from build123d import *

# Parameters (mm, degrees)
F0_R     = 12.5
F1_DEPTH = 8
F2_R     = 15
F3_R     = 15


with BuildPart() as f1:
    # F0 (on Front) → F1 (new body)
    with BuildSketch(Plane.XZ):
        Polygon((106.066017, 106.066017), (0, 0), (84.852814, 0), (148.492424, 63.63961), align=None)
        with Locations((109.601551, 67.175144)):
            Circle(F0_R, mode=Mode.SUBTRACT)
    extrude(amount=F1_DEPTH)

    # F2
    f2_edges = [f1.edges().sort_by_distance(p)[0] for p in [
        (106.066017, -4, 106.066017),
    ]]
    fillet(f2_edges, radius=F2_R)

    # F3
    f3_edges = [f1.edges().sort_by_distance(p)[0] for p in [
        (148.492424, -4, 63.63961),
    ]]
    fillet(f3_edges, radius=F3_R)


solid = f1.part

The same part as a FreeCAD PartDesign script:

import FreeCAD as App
import Part
import Sketcher
from FreeCAD import Vector
Q = App.Units.Quantity


def edges_at(feature, points):
    """Names of the edges that pass closest to the given points."""
    edges = feature.Shape.Edges
    near = lambda p: min(range(len(edges)), key=lambda i: edges[i].distToShape(Part.Vertex(*p))[0])
    return sorted({f"Edge{near(p) + 1}" for p in points})

doc = App.newDocument("Part")
body = doc.addObject("PartDesign::Body", "Body")

sketch1 = doc.addObject("Sketcher::SketchObject", "Sketch")
body.addObject(sketch1)
sketch1.AttachmentSupport = (doc.XZ_Plane, [""])
sketch1.MapMode = "FlatFace"
sketch1.addGeometry(Part.LineSegment(Vector(106, 106, 0), Vector(0, 0, 0)), False)
sketch1.addGeometry(Part.LineSegment(Vector(0, 0, 0), Vector(85, 0, 0)), False)
sketch1.addGeometry(Part.LineSegment(Vector(85, 0, 0), Vector(148, 64, 0)), False)
sketch1.addGeometry(Part.LineSegment(Vector(148, 64, 0), Vector(106, 106, 0)), False)
sketch1.addGeometry(Part.Circle(Vector(110, 67, 0), Vector(0, 0, 1), 12), False)
sketch1.addConstraint(Sketcher.Constraint("Coincident", 0, 2, 1, 1))
sketch1.addConstraint(Sketcher.Constraint("Coincident", 1, 2, 2, 1))
sketch1.addConstraint(Sketcher.Constraint("Coincident", 2, 2, 3, 1))
sketch1.addConstraint(Sketcher.Constraint("Coincident", 3, 2, 0, 1))
sketch1.addConstraint(Sketcher.Constraint("Horizontal", 1))
sketch1.addConstraint(Sketcher.Constraint("Coincident", 0, 2, -1, 1))
sketch1.addConstraint(Sketcher.Constraint("Parallel", 0, 2))
sketch1.addConstraint(Sketcher.Constraint("Perpendicular", 2, 3))
sketch1.addConstraint(Sketcher.Constraint("Diameter", 4, Q("25 mm")))
sketch1.addConstraint(Sketcher.Constraint("Angle", 0, Q("-135 deg")))
sketch1.addConstraint(Sketcher.Constraint("Distance", 0, Q("150 mm")))
sketch1.addConstraint(Sketcher.Constraint("Distance", 2, Q("90 mm")))
sketch1.addConstraint(Sketcher.Constraint("DistanceX", -1, 1, 4, 3, Q("109.601551 mm")))
sketch1.addConstraint(Sketcher.Constraint("DistanceY", -1, 1, 4, 3, Q("67.175144 mm")))
pad1 = doc.addObject("PartDesign::Pad", "Pad")
body.addObject(pad1)
pad1.Profile = sketch1
pad1.Length = 8
doc.recompute()

fillet = doc.addObject("PartDesign::Fillet", "Fillet")
body.addObject(fillet)
fillet.Base = (pad1, edges_at(pad1, [(106.066, -4, 106.066)]))
fillet.Radius = 15
doc.recompute()

fillet2 = doc.addObject("PartDesign::Fillet", "Fillet001")
body.addObject(fillet2)
fillet2.Base = (fillet, edges_at(fillet, [(148.492, -4, 63.64)]))
fillet2.Radius = 15

doc.recompute()
